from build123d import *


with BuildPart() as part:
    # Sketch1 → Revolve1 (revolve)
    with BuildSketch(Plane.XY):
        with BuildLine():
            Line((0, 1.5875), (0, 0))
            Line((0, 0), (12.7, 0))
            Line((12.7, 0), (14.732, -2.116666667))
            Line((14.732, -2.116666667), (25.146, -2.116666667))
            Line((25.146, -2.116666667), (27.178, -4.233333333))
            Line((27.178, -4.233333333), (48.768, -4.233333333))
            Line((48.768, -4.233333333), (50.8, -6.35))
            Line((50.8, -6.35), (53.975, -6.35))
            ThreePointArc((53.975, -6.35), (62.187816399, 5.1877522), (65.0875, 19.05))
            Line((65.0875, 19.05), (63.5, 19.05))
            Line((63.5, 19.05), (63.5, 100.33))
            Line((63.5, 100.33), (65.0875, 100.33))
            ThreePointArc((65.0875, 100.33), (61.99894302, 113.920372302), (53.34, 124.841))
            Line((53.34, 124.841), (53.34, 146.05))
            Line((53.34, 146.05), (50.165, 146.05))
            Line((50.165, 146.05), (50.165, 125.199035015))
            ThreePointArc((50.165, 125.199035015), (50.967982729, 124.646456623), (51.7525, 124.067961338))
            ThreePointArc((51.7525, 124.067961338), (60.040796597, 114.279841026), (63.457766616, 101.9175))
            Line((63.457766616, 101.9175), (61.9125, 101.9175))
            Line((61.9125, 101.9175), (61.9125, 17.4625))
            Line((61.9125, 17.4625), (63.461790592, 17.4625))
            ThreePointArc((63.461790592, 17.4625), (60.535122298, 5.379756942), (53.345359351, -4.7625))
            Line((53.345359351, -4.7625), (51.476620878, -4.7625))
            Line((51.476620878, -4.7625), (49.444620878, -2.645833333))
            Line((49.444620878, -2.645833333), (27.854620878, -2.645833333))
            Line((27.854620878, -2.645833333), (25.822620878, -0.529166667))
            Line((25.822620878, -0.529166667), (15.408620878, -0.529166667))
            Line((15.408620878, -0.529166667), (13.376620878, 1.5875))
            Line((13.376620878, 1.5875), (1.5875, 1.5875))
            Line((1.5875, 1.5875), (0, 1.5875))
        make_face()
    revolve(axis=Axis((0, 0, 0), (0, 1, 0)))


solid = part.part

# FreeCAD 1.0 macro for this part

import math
import FreeCAD as App
import Part
import Sketcher
from FreeCAD import Vector
Q = App.Units.Quantity

doc = App.newDocument("Part")
body = doc.addObject("PartDesign::Body", "Body")

# Sketch on XY plane
sketch1 = doc.addObject("Sketcher::SketchObject", "Sketch")
body.addObject(sketch1)
sketch1.AttachmentSupport = (doc.XY_Plane, [""])
sketch1.MapMode = "FlatFace"
sketch1.addGeometry([
    Part.LineSegment(Vector(0, 1.5875, 0), Vector(0, 0, 0)),  # 0
    Part.LineSegment(Vector(0, 0, 0), Vector(12.7, 0, 0)),  # 1
    Part.LineSegment(Vector(12.7, 0, 0), Vector(14.732, -2.116667, 0)),  # 2
    Part.LineSegment(Vector(14.732, -2.116667, 0), Vector(25.146, -2.116667, 0)),  # 3
    Part.LineSegment(Vector(25.146, -2.116667, 0), Vector(27.178, -4.233333, 0)),  # 4
    Part.LineSegment(Vector(27.178, -4.233333, 0), Vector(48.768, -4.233333, 0)),  # 5
    Part.LineSegment(Vector(48.768, -4.233333, 0), Vector(50.8, -6.35, 0)),  # 6
    Part.LineSegment(Vector(50.8, -6.35, 0), Vector(53.975, -6.35, 0)),  # 7
    Part.ArcOfCircle(Part.Circle(Vector(30.502679, 19.05, 0), Vector(0, 0, 1), 34.584821), math.radians(-47.258755), math.radians(0)),  # 8
    Part.LineSegment(Vector(65.0875, 19.05, 0), Vector(63.5, 19.05, 0)),  # 9
    Part.LineSegment(Vector(63.5, 19.05, 0), Vector(63.5, 100.33, 0)),  # 10
    Part.LineSegment(Vector(63.5, 100.33, 0), Vector(65.0875, 100.33, 0)),  # 11
    Part.ArcOfCircle(Part.Circle(Vector(33.642815, 100.33, 0), Vector(0, 0, 1), 31.444685), math.radians(0), math.radians(51.214434)),  # 12
    Part.LineSegment(Vector(53.34, 124.841, 0), Vector(53.34, 146.05, 0)),  # 13
    Part.LineSegment(Vector(53.34, 146.05, 0), Vector(50.165, 146.05, 0)),  # 14
    Part.LineSegment(Vector(50.165, 146.05, 0), Vector(50.165, 125.199035, 0)),  # 15
    Part.ArcOfCircle(Part.Circle(Vector(33.642815, 100.330001, 0), Vector(0, 0, 1), 29.857184), math.radians(52.659998), math.radians(56.401218)),  # 16
    Part.ArcOfCircle(Part.Circle(Vector(33.642815, 100.33, 0), Vector(0, 0, 1), 29.857185), math.radians(3.047841), math.radians(52.659998)),  # 17
    Part.LineSegment(Vector(63.457767, 101.9175, 0), Vector(61.9125, 101.9175, 0)),  # 18
    Part.LineSegment(Vector(61.9125, 101.9175, 0), Vector(61.9125, 17.4625, 0)),  # 19
    Part.LineSegment(Vector(61.9125, 17.4625, 0), Vector(63.461791, 17.4625, 0)),  # 20
    Part.ArcOfCircle(Part.Circle(Vector(30.502679, 19.05, 0), Vector(0, 0, 1), 32.997321), math.radians(-46.190833), math.radians(-2.757562)),  # 21
    Part.LineSegment(Vector(53.345359, -4.7625, 0), Vector(51.476621, -4.7625, 0)),  # 22
    Part.LineSegment(Vector(51.476621, -4.7625, 0), Vector(49.444621, -2.645833, 0)),  # 23
    Part.LineSegment(Vector(49.444621, -2.645833, 0), Vector(27.854621, -2.645833, 0)),  # 24
    Part.LineSegment(Vector(27.854621, -2.645833, 0), Vector(25.822621, -0.529167, 0)),  # 25
    Part.LineSegment(Vector(25.822621, -0.529167, 0), Vector(15.408621, -0.529167, 0)),  # 26
    Part.LineSegment(Vector(15.408621, -0.529167, 0), Vector(13.376621, 1.5875, 0)),  # 27
    Part.LineSegment(Vector(13.376621, 1.5875, 0), Vector(0, 1.5875, 0)),  # 28
], False)
sketch1.addConstraint([
    Sketcher.Constraint("Coincident", 0, 2, 1, 1),
    Sketcher.Constraint("Coincident", 1, 2, 2, 1),
    Sketcher.Constraint("Coincident", 2, 2, 3, 1),
    Sketcher.Constraint("Coincident", 3, 2, 4, 1),
    Sketcher.Constraint("Coincident", 4, 2, 5, 1),
    Sketcher.Constraint("Coincident", 5, 2, 6, 1),
    Sketcher.Constraint("Coincident", 6, 2, 7, 1),
    Sketcher.Constraint("Coincident", 7, 2, 8, 1),
    Sketcher.Constraint("Coincident", 8, 2, 9, 1),
    Sketcher.Constraint("Coincident", 9, 2, 10, 1),
    Sketcher.Constraint("Coincident", 10, 2, 11, 1),
    Sketcher.Constraint("Coincident", 11, 2, 12, 1),
    Sketcher.Constraint("Coincident", 12, 2, 13, 1),
    Sketcher.Constraint("Coincident", 13, 2, 14, 1),
    Sketcher.Constraint("Coincident", 14, 2, 15, 1),
    Sketcher.Constraint("Coincident", 15, 2, 16, 2),
    Sketcher.Constraint("Tangent", 16, 1, 17, 2),
    Sketcher.Constraint("Coincident", 17, 1, 18, 1),
    Sketcher.Constraint("Coincident", 18, 2, 19, 1),
    Sketcher.Constraint("Coincident", 19, 2, 20, 1),
    Sketcher.Constraint("Coincident", 20, 2, 21, 2),
    Sketcher.Constraint("Coincident", 21, 1, 22, 1),
    Sketcher.Constraint("Coincident", 22, 2, 23, 1),
    Sketcher.Constraint("Coincident", 23, 2, 24, 1),
    Sketcher.Constraint("Coincident", 24, 2, 25, 1),
    Sketcher.Constraint("Coincident", 25, 2, 26, 1),
    Sketcher.Constraint("Coincident", 26, 2, 27, 1),
    Sketcher.Constraint("Coincident", 27, 2, 28, 1),
    Sketcher.Constraint("Coincident", 28, 2, 0, 1),
    Sketcher.Constraint("Vertical", 0),
    Sketcher.Constraint("Horizontal", 1),
    Sketcher.Constraint("Horizontal", 3),
    Sketcher.Constraint("Horizontal", 5),
    Sketcher.Constraint("Horizontal", 7),
    Sketcher.Constraint("Horizontal", 9),
    Sketcher.Constraint("Vertical", 10),
    Sketcher.Constraint("Horizontal", 11),
    Sketcher.Constraint("Vertical", 13),
    Sketcher.Constraint("Horizontal", 14),
    Sketcher.Constraint("Vertical", 15),
    Sketcher.Constraint("Horizontal", 18),
    Sketcher.Constraint("Vertical", 19),
    Sketcher.Constraint("Horizontal", 20),
    Sketcher.Constraint("Horizontal", 22),
    Sketcher.Constraint("Horizontal", 24),
    Sketcher.Constraint("Horizontal", 26),
    Sketcher.Constraint("Horizontal", 28),
    Sketcher.Constraint("Coincident", 0, 2, -1, 1),
    Sketcher.Constraint("Coincident", 16, 3, 12, 3),
    Sketcher.Constraint("Coincident", 21, 3, 8, 3),
    Sketcher.Constraint("Equal", 16, 17),
    Sketcher.Constraint("Parallel", 2, 4),
    Sketcher.Constraint("Parallel", 4, 6),
    Sketcher.Constraint("Parallel", 6, 23),
    Sketcher.Constraint("Parallel", 23, 25),
    Sketcher.Constraint("Parallel", 25, 27),
    Sketcher.Constraint("Horizontal", 21, 3, 8, 2),
    Sketcher.Constraint("Horizontal", 17, 3, 10, 2),
    Sketcher.Constraint("Vertical", 8, 2, 11, 2),
    Sketcher.Constraint("Equal", 7, 14),
    Sketcher.Constraint("Equal", 5, 24),
    Sketcher.Constraint("Equal", 3, 26),
    Sketcher.Constraint("Equal", 11, 0),
    Sketcher.Constraint("Equal", 2, 4),
    Sketcher.Constraint("Equal", 4, 6),
    Sketcher.Constraint("Equal", 6, 23),
    Sketcher.Constraint("Equal", 23, 25),
    Sketcher.Constraint("Equal", 25, 27),
    Sketcher.Constraint("DistanceX", 1, 1, 1, 2, Q("0.5 in")),
    Sketcher.Constraint("DistanceY", 10, 1, 10, 2, Q("3.2 in")),
    Sketcher.Constraint("DistanceX", -1, 1, 6, 2, Q("2 in")),
    Sketcher.Constraint("DistanceY", 6, 2, 21, 3, Q("1 in")),
    Sketcher.Constraint("DistanceX", 3, 1, 3, 2, Q("0.41 in")),
    Sketcher.Constraint("DistanceX", 5, 1, 5, 2, Q("0.85 in")),
    Sketcher.Constraint("DistanceX", -1, 1, 9, 2, Q("2.5 in")),
    Sketcher.Constraint("DistanceX", -1, 1, 12, 2, Q("2.1 in")),
    Sketcher.Constraint("DistanceY", 10, 2, 13, 2, Q("1.8 in")),
    Sketcher.Constraint("DistanceX", 16, 1, 18, 2, Q("0.4 in")),
    Sketcher.Constraint("DistanceX", 7, 1, 7, 2, Q("0.125 in")),
    Sketcher.Constraint("DistanceX", 9, 2, 9, 1, Q("0.0625 in")),
    Sketcher.Constraint("DistanceY", 13, 1, 13, 2, Q("0.835 in")),
    Sketcher.Constraint("DistanceY", 19, 2, 19, 1, Q("3.325 in")),
    Sketcher.Constraint("DistanceY", -1, 1, 8, 3, Q("0.75 in")),
    Sketcher.Constraint("DistanceX", -1, 1, 18, 2, Q("2.4375 in")),
    Sketcher.Constraint("DistanceY", -1, 1, 19, 2, Q("0.6875 in")),
    Sketcher.Constraint("Radius", 21, Q("32.997321 mm")),
    Sketcher.Constraint("Radius", 16, Q("29.857184 mm")),
    Sketcher.Constraint("DistanceX", 22, 2, 22, 1, Q("1.868738 mm")),
])
revolution = doc.addObject("PartDesign::Revolution", "Revolution")
body.addObject(revolution)
revolution.Profile = sketch1
revolution.ReferenceAxis = (sketch1, ["V_Axis"])
revolution.Angle = 360

doc.recompute()
